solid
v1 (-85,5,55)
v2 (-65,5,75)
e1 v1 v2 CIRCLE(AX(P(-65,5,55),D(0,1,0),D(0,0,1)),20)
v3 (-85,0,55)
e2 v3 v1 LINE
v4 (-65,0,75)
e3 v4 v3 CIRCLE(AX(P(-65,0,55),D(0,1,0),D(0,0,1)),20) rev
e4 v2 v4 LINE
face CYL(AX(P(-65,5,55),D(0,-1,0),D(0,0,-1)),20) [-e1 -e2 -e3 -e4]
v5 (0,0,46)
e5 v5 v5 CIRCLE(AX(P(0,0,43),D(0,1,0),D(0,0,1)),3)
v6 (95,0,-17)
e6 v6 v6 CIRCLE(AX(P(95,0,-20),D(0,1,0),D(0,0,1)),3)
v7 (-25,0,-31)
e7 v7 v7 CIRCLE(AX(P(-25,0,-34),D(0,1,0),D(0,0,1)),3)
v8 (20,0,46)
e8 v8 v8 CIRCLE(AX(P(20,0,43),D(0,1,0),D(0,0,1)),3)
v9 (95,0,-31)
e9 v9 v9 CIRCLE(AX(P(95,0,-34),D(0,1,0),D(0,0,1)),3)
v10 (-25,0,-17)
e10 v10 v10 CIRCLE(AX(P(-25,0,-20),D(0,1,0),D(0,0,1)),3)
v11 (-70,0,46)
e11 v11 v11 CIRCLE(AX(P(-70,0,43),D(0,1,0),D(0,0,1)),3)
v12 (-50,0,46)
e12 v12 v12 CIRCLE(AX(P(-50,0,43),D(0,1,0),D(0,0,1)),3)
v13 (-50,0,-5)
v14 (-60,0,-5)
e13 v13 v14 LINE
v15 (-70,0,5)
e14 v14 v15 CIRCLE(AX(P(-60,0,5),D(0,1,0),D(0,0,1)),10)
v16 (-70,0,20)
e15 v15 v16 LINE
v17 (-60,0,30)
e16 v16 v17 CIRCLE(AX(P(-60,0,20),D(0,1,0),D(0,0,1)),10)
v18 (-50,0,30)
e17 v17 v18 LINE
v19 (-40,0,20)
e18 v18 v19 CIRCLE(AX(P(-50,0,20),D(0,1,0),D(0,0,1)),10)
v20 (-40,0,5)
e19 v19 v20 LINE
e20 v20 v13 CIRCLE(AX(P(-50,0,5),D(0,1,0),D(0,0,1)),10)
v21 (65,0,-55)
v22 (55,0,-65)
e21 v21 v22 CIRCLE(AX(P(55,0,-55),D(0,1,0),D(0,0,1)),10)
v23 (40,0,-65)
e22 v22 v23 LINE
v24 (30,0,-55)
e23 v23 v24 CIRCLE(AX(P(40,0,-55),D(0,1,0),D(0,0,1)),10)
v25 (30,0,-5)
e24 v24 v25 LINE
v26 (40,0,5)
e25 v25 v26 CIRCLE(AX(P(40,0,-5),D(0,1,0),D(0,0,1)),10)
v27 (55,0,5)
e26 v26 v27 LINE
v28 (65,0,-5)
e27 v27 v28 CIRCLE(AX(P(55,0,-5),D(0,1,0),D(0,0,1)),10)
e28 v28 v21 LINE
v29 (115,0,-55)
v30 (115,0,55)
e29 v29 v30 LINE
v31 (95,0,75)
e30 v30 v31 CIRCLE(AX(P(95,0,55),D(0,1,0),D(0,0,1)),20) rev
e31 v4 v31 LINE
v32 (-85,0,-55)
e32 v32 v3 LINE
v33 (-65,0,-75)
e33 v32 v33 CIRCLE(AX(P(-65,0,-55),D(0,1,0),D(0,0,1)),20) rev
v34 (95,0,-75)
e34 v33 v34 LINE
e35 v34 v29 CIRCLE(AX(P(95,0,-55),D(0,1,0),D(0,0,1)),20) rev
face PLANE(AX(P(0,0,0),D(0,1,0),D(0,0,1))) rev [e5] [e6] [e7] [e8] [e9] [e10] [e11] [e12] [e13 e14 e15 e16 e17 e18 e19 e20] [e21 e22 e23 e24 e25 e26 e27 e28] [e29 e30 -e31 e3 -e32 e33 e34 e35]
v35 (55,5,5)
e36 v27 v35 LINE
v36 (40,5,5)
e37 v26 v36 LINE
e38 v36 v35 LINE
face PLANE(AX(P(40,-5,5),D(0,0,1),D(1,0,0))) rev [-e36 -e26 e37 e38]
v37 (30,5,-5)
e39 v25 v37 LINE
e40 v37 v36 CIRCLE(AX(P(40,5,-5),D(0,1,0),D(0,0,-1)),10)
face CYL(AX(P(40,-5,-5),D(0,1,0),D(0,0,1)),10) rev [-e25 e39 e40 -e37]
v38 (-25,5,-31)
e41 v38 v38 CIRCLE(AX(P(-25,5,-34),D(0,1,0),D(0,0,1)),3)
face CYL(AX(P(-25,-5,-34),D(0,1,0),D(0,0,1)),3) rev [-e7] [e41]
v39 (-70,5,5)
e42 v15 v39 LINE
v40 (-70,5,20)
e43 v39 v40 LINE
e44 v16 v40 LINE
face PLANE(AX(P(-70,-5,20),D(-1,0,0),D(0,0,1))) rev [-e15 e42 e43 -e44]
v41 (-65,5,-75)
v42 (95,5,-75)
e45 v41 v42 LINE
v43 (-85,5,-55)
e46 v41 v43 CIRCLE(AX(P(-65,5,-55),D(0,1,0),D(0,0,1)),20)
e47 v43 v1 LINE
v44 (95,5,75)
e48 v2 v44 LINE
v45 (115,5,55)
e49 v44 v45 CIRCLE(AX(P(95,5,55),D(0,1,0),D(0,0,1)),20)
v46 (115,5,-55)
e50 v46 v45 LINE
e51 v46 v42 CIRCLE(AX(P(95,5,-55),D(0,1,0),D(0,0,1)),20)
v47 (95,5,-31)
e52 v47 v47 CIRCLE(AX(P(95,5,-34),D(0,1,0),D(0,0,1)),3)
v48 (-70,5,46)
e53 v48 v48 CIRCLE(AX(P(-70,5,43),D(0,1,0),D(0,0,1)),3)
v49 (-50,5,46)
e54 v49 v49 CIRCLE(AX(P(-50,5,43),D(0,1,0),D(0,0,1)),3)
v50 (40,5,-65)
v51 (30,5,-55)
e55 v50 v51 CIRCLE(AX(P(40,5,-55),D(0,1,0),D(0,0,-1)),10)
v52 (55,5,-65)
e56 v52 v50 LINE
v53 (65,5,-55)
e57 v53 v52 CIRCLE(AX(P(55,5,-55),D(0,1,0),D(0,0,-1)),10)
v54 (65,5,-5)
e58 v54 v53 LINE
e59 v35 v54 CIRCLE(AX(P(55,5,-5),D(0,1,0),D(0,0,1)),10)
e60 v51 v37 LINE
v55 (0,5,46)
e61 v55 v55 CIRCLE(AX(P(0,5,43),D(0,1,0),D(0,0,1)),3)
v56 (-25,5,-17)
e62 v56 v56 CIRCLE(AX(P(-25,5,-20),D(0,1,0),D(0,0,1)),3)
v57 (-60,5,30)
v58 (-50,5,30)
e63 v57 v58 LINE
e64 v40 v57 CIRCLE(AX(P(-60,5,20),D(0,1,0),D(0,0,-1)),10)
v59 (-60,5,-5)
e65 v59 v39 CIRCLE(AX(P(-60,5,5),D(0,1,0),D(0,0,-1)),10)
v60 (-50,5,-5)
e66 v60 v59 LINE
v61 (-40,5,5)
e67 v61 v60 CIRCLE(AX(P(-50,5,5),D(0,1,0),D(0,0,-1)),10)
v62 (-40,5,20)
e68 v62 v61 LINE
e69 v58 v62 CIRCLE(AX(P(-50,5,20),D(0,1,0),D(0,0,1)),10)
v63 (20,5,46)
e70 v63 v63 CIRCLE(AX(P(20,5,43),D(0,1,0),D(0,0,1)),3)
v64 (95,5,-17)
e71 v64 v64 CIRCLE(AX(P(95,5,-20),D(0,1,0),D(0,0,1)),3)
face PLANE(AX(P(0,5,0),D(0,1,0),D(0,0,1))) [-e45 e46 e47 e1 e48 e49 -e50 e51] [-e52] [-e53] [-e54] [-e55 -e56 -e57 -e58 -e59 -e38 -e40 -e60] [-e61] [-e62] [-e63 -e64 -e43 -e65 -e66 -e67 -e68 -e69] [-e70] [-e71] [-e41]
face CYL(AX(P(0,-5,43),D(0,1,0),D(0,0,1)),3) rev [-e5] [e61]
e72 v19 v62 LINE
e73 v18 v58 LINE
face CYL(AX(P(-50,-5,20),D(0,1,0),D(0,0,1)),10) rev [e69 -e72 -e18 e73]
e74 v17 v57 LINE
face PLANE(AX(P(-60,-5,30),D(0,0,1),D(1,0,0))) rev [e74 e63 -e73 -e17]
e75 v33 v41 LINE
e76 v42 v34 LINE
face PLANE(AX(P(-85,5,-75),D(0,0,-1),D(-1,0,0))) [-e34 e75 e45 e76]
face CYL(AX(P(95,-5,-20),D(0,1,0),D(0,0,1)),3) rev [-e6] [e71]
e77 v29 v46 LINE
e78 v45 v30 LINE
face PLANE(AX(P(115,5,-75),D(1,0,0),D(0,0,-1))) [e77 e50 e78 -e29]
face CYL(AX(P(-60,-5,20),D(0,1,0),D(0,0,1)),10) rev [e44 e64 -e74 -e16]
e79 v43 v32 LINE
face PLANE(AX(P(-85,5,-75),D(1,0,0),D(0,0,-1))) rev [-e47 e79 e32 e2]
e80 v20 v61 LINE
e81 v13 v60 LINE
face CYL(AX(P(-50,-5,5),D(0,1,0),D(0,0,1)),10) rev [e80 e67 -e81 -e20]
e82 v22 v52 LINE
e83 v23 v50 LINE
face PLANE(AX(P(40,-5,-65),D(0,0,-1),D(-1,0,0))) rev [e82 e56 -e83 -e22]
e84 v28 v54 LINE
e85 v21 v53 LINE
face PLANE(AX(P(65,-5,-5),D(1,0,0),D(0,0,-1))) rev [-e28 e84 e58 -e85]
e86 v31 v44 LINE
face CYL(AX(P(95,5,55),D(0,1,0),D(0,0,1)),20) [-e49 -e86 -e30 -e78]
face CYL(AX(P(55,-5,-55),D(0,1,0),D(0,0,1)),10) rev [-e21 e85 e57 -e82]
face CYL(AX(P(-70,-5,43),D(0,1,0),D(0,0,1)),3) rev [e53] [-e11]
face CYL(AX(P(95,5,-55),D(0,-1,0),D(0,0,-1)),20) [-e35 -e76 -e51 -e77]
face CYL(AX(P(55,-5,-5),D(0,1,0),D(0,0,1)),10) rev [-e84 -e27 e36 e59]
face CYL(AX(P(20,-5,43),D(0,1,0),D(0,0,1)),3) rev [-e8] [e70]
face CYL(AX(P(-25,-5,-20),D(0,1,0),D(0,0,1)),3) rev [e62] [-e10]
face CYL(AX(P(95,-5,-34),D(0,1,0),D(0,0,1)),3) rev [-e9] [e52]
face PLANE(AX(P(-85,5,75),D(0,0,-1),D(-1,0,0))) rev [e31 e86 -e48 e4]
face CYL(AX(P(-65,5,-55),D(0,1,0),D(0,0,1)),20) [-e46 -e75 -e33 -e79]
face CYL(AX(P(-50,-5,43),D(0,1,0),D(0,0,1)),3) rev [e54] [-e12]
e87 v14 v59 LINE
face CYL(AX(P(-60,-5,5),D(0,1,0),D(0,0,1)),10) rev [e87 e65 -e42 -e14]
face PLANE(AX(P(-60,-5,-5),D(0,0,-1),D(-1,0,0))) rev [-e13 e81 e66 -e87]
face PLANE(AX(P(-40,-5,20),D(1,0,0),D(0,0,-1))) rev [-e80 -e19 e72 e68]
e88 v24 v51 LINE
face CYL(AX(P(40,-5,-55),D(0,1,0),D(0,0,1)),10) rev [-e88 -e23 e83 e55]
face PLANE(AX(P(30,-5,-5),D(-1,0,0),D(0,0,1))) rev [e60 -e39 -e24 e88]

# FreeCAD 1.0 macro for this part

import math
import FreeCAD as App
import Part
import Sketcher


def edges_at(feature, points):
    """Names of the edges that pass closest to the given points."""
    edges = feature.Shape.Edges
    near = lambda p: min(range(len(edges)), key=lambda i: edges[i].distToShape(Part.Vertex(*p))[0])
    return sorted({f"Edge{near(p) + 1}" for p in points})

doc = App.newDocument("Part")
body = doc.addObject("PartDesign::Body", "Body")

sketch1 = body.newObject("Sketcher::SketchObject", "Sketch")
sketch1.AttachmentSupport = (doc.getObject("XZ_Plane"), [""])
sketch1.MapMode = "FlatFace"
sketch1.addGeometry([
    Part.LineSegment(App.Vector(-85, -75, 0), App.Vector(-85, 75, 0)),
    Part.LineSegment(App.Vector(-85, 75, 0), App.Vector(115, 75, 0)),
    Part.LineSegment(App.Vector(115, 75, 0), App.Vector(115, -75, 0)),
    Part.LineSegment(App.Vector(115, -75, 0), App.Vector(-85, -75, 0)),
], False)
sketch1.addConstraint([
    Sketcher.Constraint("Coincident", 0, 2, 1, 1),
    Sketcher.Constraint("Coincident", 1, 2, 2, 1),
    Sketcher.Constraint("Coincident", 2, 2, 3, 1),
    Sketcher.Constraint("Coincident", 3, 2, 0, 1),
    Sketcher.Constraint("Vertical", 0),
    Sketcher.Constraint("Horizontal", 1),
    Sketcher.Constraint("Vertical", 2),
    Sketcher.Constraint("Horizontal", 3),
    Sketcher.Constraint("DistanceX", 1, 1, 1, 2, 200.0),
    Sketcher.Constraint("DistanceY", 0, 1, 0, 2, 150.0),
    Sketcher.Constraint("DistanceX", 0, 2, -1, 1, 85.0),
    Sketcher.Constraint("DistanceY", -1, 1, 0, 2, 75.0),
])
pad1 = body.newObject("PartDesign::Pad", "Pad")
pad1.Profile = sketch1
pad1.Length = 5
pad1.Reversed = True

sketch2 = body.newObject("Sketcher::SketchObject", "Sketch001")
sketch2.AttachmentSupport = (doc.getObject("XZ_Plane"), [""])
sketch2.MapMode = "FlatFace"
sketch2.AttachmentOffset = App.Placement(App.Vector(0, 0, -5), App.Rotation())
sketch2.addGeometry([
    Part.Circle(App.Vector(-70, 43, 0), App.Vector(0, 0, 1), 3),
    Part.Circle(App.Vector(-50, 43, 0), App.Vector(0, 0, 1), 3),
    Part.Circle(App.Vector(0, 43, 0), App.Vector(0, 0, 1), 3),
    Part.Circle(App.Vector(20, 43, 0), App.Vector(0, 0, 1), 3),
    Part.Circle(App.Vector(-25, -20, 0), App.Vector(0, 0, 1), 3),
    Part.Circle(App.Vector(-25, -34, 0), App.Vector(0, 0, 1), 3),
    Part.Circle(App.Vector(95, -20, 0), App.Vector(0, 0, 1), 3),
    Part.Circle(App.Vector(95, -34, 0), App.Vector(0, 0, 1), 3),
    Part.LineSegment(App.Vector(40, 5, 0), App.Vector(55, 5, 0)),
    Part.ArcOfCircle(Part.Circle(App.Vector(55, -5, 0), App.Vector(0, 0, 1), 10), math.radians(0), math.radians(90)),
    Part.LineSegment(App.Vector(65, -5, 0), App.Vector(65, -55, 0)),
    Part.ArcOfCircle(Part.Circle(App.Vector(55, -55, 0), App.Vector(0, 0, 1), 10), math.radians(-90), math.radians(0)),
    Part.LineSegment(App.Vector(55, -65, 0), App.Vector(40, -65, 0)),
    Part.ArcOfCircle(Part.Circle(App.Vector(40, -55, 0), App.Vector(0, 0, 1), 10), math.radians(180), math.radians(270)),
    Part.LineSegment(App.Vector(30, -55, 0), App.Vector(30, -5, 0)),
    Part.ArcOfCircle(Part.Circle(App.Vector(40, -5, 0), App.Vector(0, 0, 1), 10), math.radians(90), math.radians(180)),
    Part.LineSegment(App.Vector(-60, 30, 0), App.Vector(-50, 30, 0)),
    Part.ArcOfCircle(Part.Circle(App.Vector(-50, 20, 0), App.Vector(0, 0, 1), 10), math.radians(0), math.radians(90)),
    Part.LineSegment(App.Vector(-40, 20, 0), App.Vector(-40, 5, 0)),
    Part.ArcOfCircle(Part.Circle(App.Vector(-50, 5, 0), App.Vector(0, 0, 1), 10), math.radians(-90), math.radians(0)),
    Part.LineSegment(App.Vector(-50, -5, 0), App.Vector(-60, -5, 0)),
    Part.ArcOfCircle(Part.Circle(App.Vector(-60, 5, 0), App.Vector(0, 0, 1), 10), math.radians(180), math.radians(270)),
    Part.LineSegment(App.Vector(-70, 5, 0), App.Vector(-70, 20, 0)),
    Part.ArcOfCircle(Part.Circle(App.Vector(-60, 20, 0), App.Vector(0, 0, 1), 10), math.radians(90), math.radians(180)),
], False)
sketch2.addConstraint([
    Sketcher.Constraint("Tangent", 8, 2, 9, 2),
    Sketcher.Constraint("Tangent", 9, 1, 10, 1),
    Sketcher.Constraint("Tangent", 10, 2, 11, 2),
    Sketcher.Constraint("Tangent", 11, 1, 12, 1),
    Sketcher.Constraint("Tangent", 12, 2, 13, 2),
    Sketcher.Constraint("Tangent", 13, 1, 14, 1),
    Sketcher.Constraint("Tangent", 14, 2, 15, 2),
    Sketcher.Constraint("Tangent", 15, 1, 8, 1),
    Sketcher.Constraint("Tangent", 16, 2, 17, 2),
    Sketcher.Constraint("Tangent", 17, 1, 18, 1),
    Sketcher.Constraint("Tangent", 18, 2, 19, 2),
    Sketcher.Constraint("Tangent", 19, 1, 20, 1),
    Sketcher.Constraint("Tangent", 20, 2, 21, 2),
    Sketcher.Constraint("Tangent", 21, 1, 22, 1),
    Sketcher.Constraint("Tangent", 22, 2, 23, 2),
    Sketcher.Constraint("Tangent", 23, 1, 16, 1),
    Sketcher.Constraint("Horizontal", 8),
    Sketcher.Constraint("Vertical", 10),
    Sketcher.Constraint("Horizontal", 12),
    Sketcher.Constraint("Vertical", 14),
    Sketcher.Constraint("Horizontal", 16),
    Sketcher.Constraint("Vertical", 18),
    Sketcher.Constraint("Horizontal", 20),
    Sketcher.Constraint("Vertical", 22),
    Sketcher.Constraint("Equal", 0, 1),
    Sketcher.Constraint("Equal", 1, 2),
    Sketcher.Constraint("Equal", 2, 3),
    Sketcher.Constraint("Equal", 3, 4),
    Sketcher.Constraint("Equal", 4, 5),
    Sketcher.Constraint("Equal", 5, 6),
    Sketcher.Constraint("Equal", 6, 7),
    Sketcher.Constraint("Equal", 9, 11),
    Sketcher.Constraint("Equal", 11, 13),
    Sketcher.Constraint("Equal", 13, 15),
    Sketcher.Constraint("Equal", 15, 17),
    Sketcher.Constraint("Equal", 17, 19),
    Sketcher.Constraint("Equal", 19, 21),
    Sketcher.Constraint("Equal", 21, 23),
    Sketcher.Constraint("Symmetric", 15, 1, 18, 2, -2),
    Sketcher.Constraint("PointOnObject", 2, 3, -2),
    Sketcher.Constraint("Horizontal", 0, 3, 1, 3),
    Sketcher.Constraint("Horizontal", 1, 3, 2, 3),
    Sketcher.Constraint("Horizontal", 2, 3, 3, 3),
    Sketcher.Constraint("Horizontal", 4, 3, 6, 3),
    Sketcher.Constraint("Horizontal", 5, 3, 7, 3),
    Sketcher.Constraint("Vertical", 4, 3, 5, 3),
    Sketcher.Constraint("Vertical", 6, 3, 7, 3),
    Sketcher.Constraint("Vertical", 1, 3, 17, 3),
    Sketcher.Constraint("Vertical", 0, 3, 21, 1),
    Sketcher.Constraint("Equal", 12, 18),
    Sketcher.Constraint("Diameter", 0, 6.0),
    Sketcher.Constraint("Radius", 9, 10.0),
    Sketcher.Constraint("DistanceX", 8, 1, 8, 2, 15.0),
    Sketcher.Constraint("DistanceX", 16, 1, 16, 2, 10.0),
    Sketcher.Constraint("DistanceY", 10, 2, 10, 1, 50.0),
    Sketcher.Constraint("DistanceX", 0, 3, -1, 1, 70.0),
    Sketcher.Constraint("DistanceY", -1, 1, 0, 3, 43.0),
    Sketcher.Constraint("DistanceX", -1, 1, 3, 3, 20.0),
    Sketcher.Constraint("DistanceX", 4, 3, -1, 1, 25.0),
    Sketcher.Constraint("DistanceY", 4, 3, -1, 1, 20.0),
    Sketcher.Constraint("DistanceY", 5, 3, -1, 1, 34.0),
    Sketcher.Constraint("DistanceX", -1, 1, 6, 3, 95.0),
    Sketcher.Constraint("DistanceY", 9, 3, -1, 1, 5.0),
])
pocket1 = body.newObject("PartDesign::Pocket", "Pocket")
pocket1.Profile = sketch2
pocket1.Length = 10
pocket1.Reversed = True
doc.recompute()

fillet = body.newObject("PartDesign::Fillet", "Fillet")
fillet.Base = (pocket1, edges_at(pocket1, [
    (-85, 2.5, -75),
    (115, 2.5, -75),
    (115, 2.5, 75),
    (-85, 2.5, 75),
]))
fillet.Radius = 20

doc.recompute()
